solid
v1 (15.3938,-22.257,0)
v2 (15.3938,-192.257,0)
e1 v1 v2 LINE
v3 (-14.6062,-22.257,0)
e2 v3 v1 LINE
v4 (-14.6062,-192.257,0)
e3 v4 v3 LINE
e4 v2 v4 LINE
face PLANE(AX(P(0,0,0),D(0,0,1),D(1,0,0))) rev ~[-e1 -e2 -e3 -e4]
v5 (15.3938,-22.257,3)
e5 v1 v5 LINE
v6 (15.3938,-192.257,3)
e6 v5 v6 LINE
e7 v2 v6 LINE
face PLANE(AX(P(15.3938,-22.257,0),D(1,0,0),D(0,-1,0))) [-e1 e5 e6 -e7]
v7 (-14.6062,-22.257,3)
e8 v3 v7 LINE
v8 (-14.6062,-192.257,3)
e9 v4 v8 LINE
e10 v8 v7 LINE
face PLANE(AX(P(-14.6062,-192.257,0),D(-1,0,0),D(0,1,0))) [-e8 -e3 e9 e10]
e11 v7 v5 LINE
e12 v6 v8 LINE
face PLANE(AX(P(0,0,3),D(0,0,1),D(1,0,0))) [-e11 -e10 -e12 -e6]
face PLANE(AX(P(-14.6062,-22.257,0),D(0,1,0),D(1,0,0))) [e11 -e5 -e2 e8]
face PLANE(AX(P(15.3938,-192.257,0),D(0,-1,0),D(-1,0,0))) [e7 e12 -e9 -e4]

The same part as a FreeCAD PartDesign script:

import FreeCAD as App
import Part
import Sketcher


def add_polygon(sketch, points):
    """Adds a closed chain of lines whose ends are joined by coincident constraints."""
    first, n = sketch.GeometryCount, len(points)
    for a, b in zip(points, points[1:] + points[:1]):
        sketch.addGeometry(Part.LineSegment(App.Vector(*a, 0), App.Vector(*b, 0)), False)
    for i in range(n):
        sketch.addConstraint(Sketcher.Constraint("Coincident", first + i, 2, first + (i + 1) % n, 1))

doc = App.newDocument("Part")
body = doc.addObject("PartDesign::Body", "Body")

sketch1 = doc.addObject("Sketcher::SketchObject", "Sketch")
body.addObject(sketch1)
sketch1.AttachmentSupport = (doc.XY_Plane, [""])
sketch1.MapMode = "FlatFace"
add_polygon(sketch1, [(15, -22), (-15, -22), (-15, -192), (15, -192)])
sketch1.addConstraint([
    Sketcher.Constraint("Horizontal", 0),
    Sketcher.Constraint("Vertical", 1),
    Sketcher.Constraint("Horizontal", 2),
    Sketcher.Constraint("Vertical", 3),
    Sketcher.Constraint("DistanceX", 0, 2, 0, 1, 30.0),
    Sketcher.Constraint("DistanceY", 1, 2, 1, 1, 170.0),
    Sketcher.Constraint("DistanceY", 0, 2, -1, 1, 22.257),
    Sketcher.Constraint("DistanceX", 0, 2, -1, 1, 14.6062),
])
pad1 = doc.addObject("PartDesign::Pad", "Pad")
body.addObject(pad1)
pad1.Profile = sketch1
pad1.Length = 3

doc.recompute()
